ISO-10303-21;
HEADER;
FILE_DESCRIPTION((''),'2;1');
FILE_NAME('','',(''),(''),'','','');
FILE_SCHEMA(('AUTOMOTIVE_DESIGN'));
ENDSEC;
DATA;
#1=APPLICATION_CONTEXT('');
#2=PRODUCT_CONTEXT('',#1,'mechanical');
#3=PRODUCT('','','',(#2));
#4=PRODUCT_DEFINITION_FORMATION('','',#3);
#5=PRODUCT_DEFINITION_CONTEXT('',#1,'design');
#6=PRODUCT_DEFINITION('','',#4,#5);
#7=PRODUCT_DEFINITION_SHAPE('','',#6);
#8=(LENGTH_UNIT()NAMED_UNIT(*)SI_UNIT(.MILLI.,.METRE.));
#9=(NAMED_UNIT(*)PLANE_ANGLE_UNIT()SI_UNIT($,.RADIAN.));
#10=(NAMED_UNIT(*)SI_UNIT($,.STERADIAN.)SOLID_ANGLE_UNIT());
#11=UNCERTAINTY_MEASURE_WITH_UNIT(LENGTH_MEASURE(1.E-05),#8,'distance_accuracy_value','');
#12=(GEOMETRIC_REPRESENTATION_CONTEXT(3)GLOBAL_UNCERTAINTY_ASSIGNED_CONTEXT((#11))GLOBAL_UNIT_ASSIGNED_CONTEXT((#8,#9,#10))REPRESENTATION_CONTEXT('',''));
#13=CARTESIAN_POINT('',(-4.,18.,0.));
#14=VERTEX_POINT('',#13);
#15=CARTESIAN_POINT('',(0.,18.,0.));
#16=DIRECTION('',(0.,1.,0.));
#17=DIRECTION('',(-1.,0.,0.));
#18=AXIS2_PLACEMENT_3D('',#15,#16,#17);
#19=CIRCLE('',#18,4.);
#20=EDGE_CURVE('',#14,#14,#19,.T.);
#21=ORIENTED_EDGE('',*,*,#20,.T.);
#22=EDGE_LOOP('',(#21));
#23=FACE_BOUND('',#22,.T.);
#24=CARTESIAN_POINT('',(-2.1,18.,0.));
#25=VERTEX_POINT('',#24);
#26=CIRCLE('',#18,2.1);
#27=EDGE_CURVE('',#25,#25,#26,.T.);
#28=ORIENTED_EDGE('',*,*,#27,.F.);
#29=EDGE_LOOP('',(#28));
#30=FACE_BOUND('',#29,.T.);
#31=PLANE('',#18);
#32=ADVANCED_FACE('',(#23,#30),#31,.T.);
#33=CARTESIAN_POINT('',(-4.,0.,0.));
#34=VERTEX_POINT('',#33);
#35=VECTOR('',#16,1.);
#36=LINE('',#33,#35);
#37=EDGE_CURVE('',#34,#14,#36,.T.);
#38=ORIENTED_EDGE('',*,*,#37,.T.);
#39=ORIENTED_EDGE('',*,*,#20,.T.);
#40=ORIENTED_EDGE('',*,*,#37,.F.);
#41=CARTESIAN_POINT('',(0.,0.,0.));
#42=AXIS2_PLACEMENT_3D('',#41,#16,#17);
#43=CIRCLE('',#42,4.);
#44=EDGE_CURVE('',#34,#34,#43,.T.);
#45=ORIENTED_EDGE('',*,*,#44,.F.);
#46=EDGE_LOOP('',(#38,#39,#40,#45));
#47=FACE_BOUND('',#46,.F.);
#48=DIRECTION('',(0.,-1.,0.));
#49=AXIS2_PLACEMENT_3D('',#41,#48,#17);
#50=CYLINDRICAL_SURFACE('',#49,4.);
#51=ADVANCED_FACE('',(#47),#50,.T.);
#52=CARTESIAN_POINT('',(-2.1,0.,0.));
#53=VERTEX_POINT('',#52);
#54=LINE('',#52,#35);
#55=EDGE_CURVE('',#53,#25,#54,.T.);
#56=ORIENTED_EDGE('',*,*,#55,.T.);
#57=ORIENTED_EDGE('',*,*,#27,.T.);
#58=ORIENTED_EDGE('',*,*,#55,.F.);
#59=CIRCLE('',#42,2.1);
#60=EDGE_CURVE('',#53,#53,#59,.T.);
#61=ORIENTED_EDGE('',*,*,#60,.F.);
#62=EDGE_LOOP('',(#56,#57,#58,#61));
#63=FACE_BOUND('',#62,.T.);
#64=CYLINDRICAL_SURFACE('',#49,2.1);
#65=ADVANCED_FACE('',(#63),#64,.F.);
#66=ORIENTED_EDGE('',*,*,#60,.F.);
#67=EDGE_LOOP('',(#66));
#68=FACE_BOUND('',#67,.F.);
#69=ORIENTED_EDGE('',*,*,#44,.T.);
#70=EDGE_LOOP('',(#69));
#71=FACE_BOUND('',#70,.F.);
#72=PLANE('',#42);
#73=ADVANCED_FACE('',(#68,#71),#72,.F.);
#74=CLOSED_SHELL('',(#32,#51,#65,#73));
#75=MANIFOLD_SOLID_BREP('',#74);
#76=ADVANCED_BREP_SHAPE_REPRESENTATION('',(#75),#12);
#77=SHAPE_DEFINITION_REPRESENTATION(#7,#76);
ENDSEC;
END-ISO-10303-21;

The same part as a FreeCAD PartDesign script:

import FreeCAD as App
import Part
import Sketcher

V = App.Vector
Q = App.Units.Quantity

doc = App.newDocument("Part")
body = doc.addObject("PartDesign::Body", "Body")

# Sketch on XZ plane
sketch1 = doc.addObject("Sketcher::SketchObject", "Sketch")
body.addObject(sketch1)
sketch1.AttachmentSupport = (doc.XZ_Plane, [""])
sketch1.MapMode = "FlatFace"
sketch1.addGeometry(Part.Circle(V(0, 0, 0), V(0, 0, 1), 4), False)
sketch1.addGeometry(Part.Circle(V(0, 0, 0), V(0, 0, 1), 2.1), False)
sketch1.addConstraint(Sketcher.Constraint("Coincident", 0, 3, -1, 1))
sketch1.addConstraint(Sketcher.Constraint("Coincident", 1, 3, -1, 1))
sketch1.addConstraint(Sketcher.Constraint("Diameter", 0, Q("8 mm")))
sketch1.addConstraint(Sketcher.Constraint("Diameter", 1, Q("4.2 mm")))
pad1 = doc.addObject("PartDesign::Pad", "Pad")
body.addObject(pad1)
pad1.Profile = sketch1
pad1.Length = 18
pad1.Reversed = True

doc.recompute()
